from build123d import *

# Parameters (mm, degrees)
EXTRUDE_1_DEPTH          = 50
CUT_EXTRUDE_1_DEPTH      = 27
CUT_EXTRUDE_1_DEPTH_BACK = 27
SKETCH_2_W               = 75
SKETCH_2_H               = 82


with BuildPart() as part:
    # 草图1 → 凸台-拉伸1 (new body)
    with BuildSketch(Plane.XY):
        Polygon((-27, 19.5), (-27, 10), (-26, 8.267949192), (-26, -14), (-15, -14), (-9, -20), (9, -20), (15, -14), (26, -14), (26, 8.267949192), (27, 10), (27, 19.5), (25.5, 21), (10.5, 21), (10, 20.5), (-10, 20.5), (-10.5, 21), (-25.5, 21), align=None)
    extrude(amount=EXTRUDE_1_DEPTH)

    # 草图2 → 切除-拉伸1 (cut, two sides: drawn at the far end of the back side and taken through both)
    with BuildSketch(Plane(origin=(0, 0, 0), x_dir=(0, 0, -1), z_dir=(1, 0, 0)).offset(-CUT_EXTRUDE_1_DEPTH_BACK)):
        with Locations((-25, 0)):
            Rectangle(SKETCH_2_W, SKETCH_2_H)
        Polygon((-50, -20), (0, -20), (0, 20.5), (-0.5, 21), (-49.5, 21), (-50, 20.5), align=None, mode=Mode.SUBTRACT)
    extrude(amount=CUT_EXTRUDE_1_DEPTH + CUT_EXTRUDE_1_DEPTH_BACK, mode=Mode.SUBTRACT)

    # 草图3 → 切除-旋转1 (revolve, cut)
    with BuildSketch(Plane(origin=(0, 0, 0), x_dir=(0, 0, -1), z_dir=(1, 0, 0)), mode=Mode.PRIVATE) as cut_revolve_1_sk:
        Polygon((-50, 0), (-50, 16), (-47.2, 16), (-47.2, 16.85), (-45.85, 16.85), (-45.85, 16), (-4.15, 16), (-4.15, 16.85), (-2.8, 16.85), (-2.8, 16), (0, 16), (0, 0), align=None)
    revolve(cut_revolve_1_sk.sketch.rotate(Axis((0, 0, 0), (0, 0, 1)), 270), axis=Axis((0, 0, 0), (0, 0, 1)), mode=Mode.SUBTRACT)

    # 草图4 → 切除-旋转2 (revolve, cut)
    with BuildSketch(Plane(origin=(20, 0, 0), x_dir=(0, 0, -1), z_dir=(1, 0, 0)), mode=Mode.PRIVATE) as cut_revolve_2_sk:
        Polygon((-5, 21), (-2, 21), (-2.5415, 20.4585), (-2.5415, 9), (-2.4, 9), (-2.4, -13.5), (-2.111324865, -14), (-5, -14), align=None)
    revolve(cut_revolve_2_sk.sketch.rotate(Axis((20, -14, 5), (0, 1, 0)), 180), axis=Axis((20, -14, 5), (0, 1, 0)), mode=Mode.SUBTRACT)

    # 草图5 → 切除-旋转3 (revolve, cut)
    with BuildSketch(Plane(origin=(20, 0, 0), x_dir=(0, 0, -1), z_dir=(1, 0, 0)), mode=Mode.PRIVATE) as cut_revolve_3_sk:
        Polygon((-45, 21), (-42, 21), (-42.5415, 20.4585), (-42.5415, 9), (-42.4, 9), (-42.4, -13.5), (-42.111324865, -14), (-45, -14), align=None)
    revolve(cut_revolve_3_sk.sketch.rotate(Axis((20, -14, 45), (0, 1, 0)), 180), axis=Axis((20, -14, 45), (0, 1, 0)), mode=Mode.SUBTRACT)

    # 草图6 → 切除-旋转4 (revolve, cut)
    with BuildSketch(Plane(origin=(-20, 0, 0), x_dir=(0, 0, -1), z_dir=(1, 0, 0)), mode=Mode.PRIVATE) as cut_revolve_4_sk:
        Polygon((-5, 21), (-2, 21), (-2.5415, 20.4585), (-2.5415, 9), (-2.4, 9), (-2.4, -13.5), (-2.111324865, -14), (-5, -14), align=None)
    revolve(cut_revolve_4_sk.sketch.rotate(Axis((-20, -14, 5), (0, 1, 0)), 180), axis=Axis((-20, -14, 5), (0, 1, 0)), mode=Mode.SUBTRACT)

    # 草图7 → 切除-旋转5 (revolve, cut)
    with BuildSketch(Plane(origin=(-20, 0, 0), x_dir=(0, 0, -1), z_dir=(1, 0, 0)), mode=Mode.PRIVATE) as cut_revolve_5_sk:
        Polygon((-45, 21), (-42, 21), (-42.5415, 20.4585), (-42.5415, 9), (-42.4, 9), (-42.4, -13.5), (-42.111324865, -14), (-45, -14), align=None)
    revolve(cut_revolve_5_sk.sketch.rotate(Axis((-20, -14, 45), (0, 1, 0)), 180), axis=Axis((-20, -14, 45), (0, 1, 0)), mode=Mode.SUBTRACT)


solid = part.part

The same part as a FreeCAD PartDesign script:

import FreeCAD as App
import Part
import Sketcher
from FreeCAD import Vector
Q = App.Units.Quantity

doc = App.newDocument("Part")
body = doc.addObject("PartDesign::Body", "Body")

sketch1 = doc.addObject("Sketcher::SketchObject", "Sketch")
body.addObject(sketch1)
sketch1.AttachmentSupport = (doc.XY_Plane, [""])
sketch1.MapMode = "FlatFace"
sketch1.addGeometry([
    Part.LineSegment(Vector(-27, 19.5, 0), Vector(-27, 10, 0)),
    Part.LineSegment(Vector(-27, 10, 0), Vector(-26, 8.3, 0)),
    Part.LineSegment(Vector(-26, 8.3, 0), Vector(-26, -14, 0)),
    Part.LineSegment(Vector(-26, -14, 0), Vector(-15, -14, 0)),
    Part.LineSegment(Vector(-15, -14, 0), Vector(-9, -20, 0)),
    Part.LineSegment(Vector(-9, -20, 0), Vector(9, -20, 0)),
    Part.LineSegment(Vector(9, -20, 0), Vector(15, -14, 0)),
    Part.LineSegment(Vector(15, -14, 0), Vector(26, -14, 0)),
    Part.LineSegment(Vector(26, -14, 0), Vector(26, 8.3, 0)),
    Part.LineSegment(Vector(26, 8.3, 0), Vector(27, 10, 0)),
    Part.LineSegment(Vector(27, 10, 0), Vector(27, 19.5, 0)),
    Part.LineSegment(Vector(27, 19.5, 0), Vector(25.5, 21, 0)),
    Part.LineSegment(Vector(25.5, 21, 0), Vector(10.5, 21, 0)),
    Part.LineSegment(Vector(10.5, 21, 0), Vector(10, 20.5, 0)),
    Part.LineSegment(Vector(10, 20.5, 0), Vector(-10, 20.5, 0)),
    Part.LineSegment(Vector(-10, 20.5, 0), Vector(-10.5, 21, 0)),
    Part.LineSegment(Vector(-10.5, 21, 0), Vector(-25.5, 21, 0)),
    Part.LineSegment(Vector(-25.5, 21, 0), Vector(-27, 19.5, 0)),
], False)
sketch1.addConstraint([
    Sketcher.Constraint("Coincident", 0, 2, 1, 1),
    Sketcher.Constraint("Coincident", 1, 2, 2, 1),
    Sketcher.Constraint("Coincident", 2, 2, 3, 1),
    Sketcher.Constraint("Coincident", 3, 2, 4, 1),
    Sketcher.Constraint("Coincident", 4, 2, 5, 1),
    Sketcher.Constraint("Coincident", 5, 2, 6, 1),
    Sketcher.Constraint("Coincident", 6, 2, 7, 1),
    Sketcher.Constraint("Coincident", 7, 2, 8, 1),
    Sketcher.Constraint("Coincident", 8, 2, 9, 1),
    Sketcher.Constraint("Coincident", 9, 2, 10, 1),
    Sketcher.Constraint("Coincident", 10, 2, 11, 1),
    Sketcher.Constraint("Coincident", 11, 2, 12, 1),
    Sketcher.Constraint("Coincident", 12, 2, 13, 1),
    Sketcher.Constraint("Coincident", 13, 2, 14, 1),
    Sketcher.Constraint("Coincident", 14, 2, 15, 1),
    Sketcher.Constraint("Coincident", 15, 2, 16, 1),
    Sketcher.Constraint("Coincident", 16, 2, 17, 1),
    Sketcher.Constraint("Coincident", 17, 2, 0, 1),
    Sketcher.Constraint("Vertical", 0),
    Sketcher.Constraint("Vertical", 2),
    Sketcher.Constraint("Horizontal", 3),
    Sketcher.Constraint("Horizontal", 5),
    Sketcher.Constraint("Horizontal", 7),
    Sketcher.Constraint("Vertical", 8),
    Sketcher.Constraint("Vertical", 10),
    Sketcher.Constraint("Horizontal", 12),
    Sketcher.Constraint("Horizontal", 14),
    Sketcher.Constraint("Horizontal", 16),
    Sketcher.Constraint("Symmetric", 3, 2, 6, 2, -2),
    Sketcher.Constraint("Symmetric", 1, 2, 8, 2, -2),
    Sketcher.Constraint("Symmetric", 0, 2, 9, 2, -2),
    Sketcher.Constraint("Symmetric", 12, 2, 15, 2, -2),
    Sketcher.Constraint("Perpendicular", 4, 6),
    Sketcher.Constraint("Perpendicular", 6, 11),
    Sketcher.Constraint("Perpendicular", 11, 13),
    Sketcher.Constraint("Perpendicular", 13, 15),
    Sketcher.Constraint("Perpendicular", 15, 17),
    Sketcher.Constraint("Horizontal", 10, 2, 17, 2),
    Sketcher.Constraint("Equal", 12, 16),
    Sketcher.Constraint("DistanceX", 3, 1, 3, 2, 11.0),
    Sketcher.Constraint("DistanceX", 5, 1, 5, 2, 18.0),
    Sketcher.Constraint("DistanceX", 12, 2, 12, 1, 15.0),
    Sketcher.Constraint("DistanceX", 14, 2, 14, 1, 20.0),
    Sketcher.Constraint("Angle", 1, Q("-60 deg")),
    Sketcher.Constraint("Distance", 1, 2.0),
    Sketcher.Constraint("DistanceY", 0, 2, 0, 1, 9.5),
    Sketcher.Constraint("DistanceX", 0, 2, -1, 1, 27.0),
    Sketcher.Constraint("DistanceY", -1, 1, 0, 2, 10.0),
    Sketcher.Constraint("DistanceY", 2, 2, -1, 1, 14.0),
    Sketcher.Constraint("DistanceY", -1, 1, 11, 2, 21.0),
])
pad1 = doc.addObject("PartDesign::Pad", "Pad")
body.addObject(pad1)
pad1.Profile = sketch1
pad1.Length = 50

sketch2 = doc.addObject("Sketcher::SketchObject", "Sketch001")
body.addObject(sketch2)
sketch2.AttachmentSupport = (doc.YZ_Plane, [""])
sketch2.MapMode = "FlatFace"
sketch2.addGeometry([
    Part.LineSegment(Vector(41, 62.5, 0), Vector(-41, 62.5, 0)),
    Part.LineSegment(Vector(-41, 62.5, 0), Vector(-41, -12.5, 0)),
    Part.LineSegment(Vector(-41, -12.5, 0), Vector(41, -12.5, 0)),
    Part.LineSegment(Vector(41, -12.5, 0), Vector(41, 62.5, 0)),
    Part.LineSegment(Vector(-20, 0, 0), Vector(-20, 50, 0)),
    Part.LineSegment(Vector(-20, 50, 0), Vector(20.5, 50, 0)),
    Part.LineSegment(Vector(20.5, 50, 0), Vector(21, 49.5, 0)),
    Part.LineSegment(Vector(21, 49.5, 0), Vector(21, 0.5, 0)),
    Part.LineSegment(Vector(21, 0.5, 0), Vector(20.5, 0, 0)),
    Part.LineSegment(Vector(20.5, 0, 0), Vector(-20, 0, 0)),
], False)
sketch2.addConstraint([
    Sketcher.Constraint("Coincident", 0, 2, 1, 1),
    Sketcher.Constraint("Coincident", 1, 2, 2, 1),
    Sketcher.Constraint("Coincident", 2, 2, 3, 1),
    Sketcher.Constraint("Coincident", 3, 2, 0, 1),
    Sketcher.Constraint("Coincident", 4, 2, 5, 1),
    Sketcher.Constraint("Coincident", 5, 2, 6, 1),
    Sketcher.Constraint("Coincident", 6, 2, 7, 1),
    Sketcher.Constraint("Coincident", 7, 2, 8, 1),
    Sketcher.Constraint("Coincident", 8, 2, 9, 1),
    Sketcher.Constraint("Coincident", 9, 2, 4, 1),
    Sketcher.Constraint("Horizontal", 0),
    Sketcher.Constraint("Vertical", 1),
    Sketcher.Constraint("Horizontal", 2),
    Sketcher.Constraint("Vertical", 3),
    Sketcher.Constraint("Vertical", 4),
    Sketcher.Constraint("Horizontal", 5),
    Sketcher.Constraint("Vertical", 7),
    Sketcher.Constraint("Horizontal", 9),
    Sketcher.Constraint("PointOnObject", 8, 2, -1),
    Sketcher.Constraint("Perpendicular", 6, 8),
    Sketcher.Constraint("Vertical", 5, 2, 8, 2),
    Sketcher.Constraint("Equal", 6, 8),
    Sketcher.Constraint("DistanceX", 0, 2, 0, 1, 82.0),
    Sketcher.Constraint("DistanceY", 1, 2, 1, 1, 75.0),
    Sketcher.Constraint("DistanceY", 4, 1, 4, 2, 50.0),
    Sketcher.Constraint("DistanceY", 7, 2, 7, 1, 49.0),
    Sketcher.Constraint("DistanceX", 5, 1, 5, 2, 40.5),
    Sketcher.Constraint("DistanceX", 0, 2, -1, 1, 41.0),
    Sketcher.Constraint("DistanceX", 4, 2, -1, 1, 20.0),
    Sketcher.Constraint("DistanceY", 6, 2, 3, 2, 13.0),
])
pocket1 = doc.addObject("PartDesign::Pocket", "Pocket")
body.addObject(pocket1)
pocket1.Profile = sketch2
pocket1.Type = "ThroughAll"
pocket1.Midplane = True

sketch3 = doc.addObject("Sketcher::SketchObject", "Sketch002")
body.addObject(sketch3)
sketch3.AttachmentSupport = (doc.YZ_Plane, [""])
sketch3.MapMode = "FlatFace"
sketch3.addGeometry([
    Part.LineSegment(Vector(16, 50, 0), Vector(0, 50, 0)),
    Part.LineSegment(Vector(0, 50, 0), Vector(0, 0, 0)),
    Part.LineSegment(Vector(0, 0, 0), Vector(16, 0, 0)),
    Part.LineSegment(Vector(16, 0, 0), Vector(16, 2.8, 0)),
    Part.LineSegment(Vector(16, 2.8, 0), Vector(16.9, 2.8, 0)),
    Part.LineSegment(Vector(16.9, 2.8, 0), Vector(16.9, 4.2, 0)),
    Part.LineSegment(Vector(16.9, 4.2, 0), Vector(16, 4.2, 0)),
    Part.LineSegment(Vector(16, 4.2, 0), Vector(16, 45.9, 0)),
    Part.LineSegment(Vector(16, 45.9, 0), Vector(16.9, 45.9, 0)),
    Part.LineSegment(Vector(16.9, 45.9, 0), Vector(16.9, 47.2, 0)),
    Part.LineSegment(Vector(16.9, 47.2, 0), Vector(16, 47.2, 0)),
    Part.LineSegment(Vector(16, 47.2, 0), Vector(16, 50, 0)),
], False)
sketch3.addConstraint([
    Sketcher.Constraint("Coincident", 0, 2, 1, 1),
    Sketcher.Constraint("Coincident", 1, 2, 2, 1),
    Sketcher.Constraint("Coincident", 2, 2, 3, 1),
    Sketcher.Constraint("Coincident", 3, 2, 4, 1),
    Sketcher.Constraint("Coincident", 4, 2, 5, 1),
    Sketcher.Constraint("Coincident", 5, 2, 6, 1),
    Sketcher.Constraint("Coincident", 6, 2, 7, 1),
    Sketcher.Constraint("Coincident", 7, 2, 8, 1),
    Sketcher.Constraint("Coincident", 8, 2, 9, 1),
    Sketcher.Constraint("Coincident", 9, 2, 10, 1),
    Sketcher.Constraint("Coincident", 10, 2, 11, 1),
    Sketcher.Constraint("Coincident", 11, 2, 0, 1),
    Sketcher.Constraint("Horizontal", 0),
    Sketcher.Constraint("Vertical", 1),
    Sketcher.Constraint("Horizontal", 2),
    Sketcher.Constraint("Vertical", 3),
    Sketcher.Constraint("Horizontal", 4),
    Sketcher.Constraint("Vertical", 5),
    Sketcher.Constraint("Horizontal", 6),
    Sketcher.Constraint("Vertical", 7),
    Sketcher.Constraint("Horizontal", 8),
    Sketcher.Constraint("Vertical", 9),
    Sketcher.Constraint("Horizontal", 10),
    Sketcher.Constraint("Vertical", 11),
    Sketcher.Constraint("Coincident", 1, 2, -1, 1),
    Sketcher.Constraint("Vertical", 3, 2, 6, 2),
    Sketcher.Constraint("Vertical", 5, 2, 8, 2),
    Sketcher.Constraint("Vertical", 7, 2, 10, 2),
    Sketcher.Constraint("Equal", 5, 9),
    Sketcher.Constraint("Equal", 3, 11),
    Sketcher.Constraint("DistanceX", 0, 2, 0, 1, 16.0),
    Sketcher.Constraint("DistanceY", 1, 2, 1, 1, 50.0),
    Sketcher.Constraint("DistanceY", 3, 1, 3, 2, 2.8),
    Sketcher.Constraint("DistanceY", 7, 1, 7, 2, 41.7),
    Sketcher.Constraint("DistanceX", 4, 1, 4, 2, 0.85),
])
groove = doc.addObject("PartDesign::Groove", "Groove")
body.addObject(groove)
groove.Profile = sketch3
groove.ReferenceAxis = (sketch3, ["V_Axis"])
groove.Angle = 360

sketch4 = doc.addObject("Sketcher::SketchObject", "Sketch003")
body.addObject(sketch4)
sketch4.AttachmentSupport = (doc.YZ_Plane, [""])
sketch4.MapMode = "FlatFace"
sketch4.AttachmentOffset = App.Placement(Vector(0, 0, 20), App.Rotation())
sketch4.addGeometry([
    Part.LineSegment(Vector(21, 2, 0), Vector(21, 5, 0)),
    Part.LineSegment(Vector(21, 5, 0), Vector(-14, 5, 0)),
    Part.LineSegment(Vector(-14, 5, 0), Vector(-14, 2.11, 0)),
    Part.LineSegment(Vector(-14, 2.11, 0), Vector(-13.5, 2.4, 0)),
    Part.LineSegment(Vector(-13.5, 2.4, 0), Vector(9, 2.4, 0)),
    Part.LineSegment(Vector(9, 2.4, 0), Vector(9, 2.54, 0)),
    Part.LineSegment(Vector(9, 2.54, 0), Vector(20.46, 2.54, 0)),
    Part.LineSegment(Vector(20.46, 2.54, 0), Vector(21, 2, 0)),
], False)
sketch4.addGeometry(Part.LineSegment(Vector(-14, 5, 0), Vector(21, 5, 0)), True)
sketch4.addConstraint([
    Sketcher.Constraint("Coincident", 0, 2, 1, 1),
    Sketcher.Constraint("Coincident", 1, 2, 2, 1),
    Sketcher.Constraint("Coincident", 2, 2, 3, 1),
    Sketcher.Constraint("Coincident", 3, 2, 4, 1),
    Sketcher.Constraint("Coincident", 4, 2, 5, 1),
    Sketcher.Constraint("Coincident", 5, 2, 6, 1),
    Sketcher.Constraint("Coincident", 6, 2, 7, 1),
    Sketcher.Constraint("Coincident", 7, 2, 0, 1),
    Sketcher.Constraint("Vertical", 0),
    Sketcher.Constraint("Horizontal", 1),
    Sketcher.Constraint("Vertical", 2),
    Sketcher.Constraint("Horizontal", 4),
    Sketcher.Constraint("Vertical", 5),
    Sketcher.Constraint("Horizontal", 6),
    Sketcher.Constraint("Horizontal", 8),
    Sketcher.Constraint("Coincident", 8, 1, 1, 2),
    Sketcher.Constraint("Vertical", 7, 2, 8, 2),
    Sketcher.Constraint("DistanceX", 1, 2, 1, 1, 35.0),
    Sketcher.Constraint("DistanceY", 0, 1, 0, 2, 3.0),
    Sketcher.Constraint("Angle", 3, Q("30 deg")),
    Sketcher.Constraint("Angle", 7, Q("-45 deg")),
    Sketcher.Constraint("DistanceX", 4, 1, 4, 2, 22.5),
    Sketcher.Constraint("DistanceX", -1, 1, 0, 2, 21.0),
    Sketcher.Constraint("DistanceY", -1, 1, 0, 2, 5.0),
    Sketcher.Constraint("DistanceX", -1, 1, 4, 2, 9.0),
    Sketcher.Constraint("DistanceY", -1, 1, 3, 2, 2.4),
    Sketcher.Constraint("DistanceX", 6, 1, 6, 2, 11.4585),
])
groove2 = doc.addObject("PartDesign::Groove", "Groove001")
body.addObject(groove2)
groove2.Profile = sketch4
groove2.ReferenceAxis = (sketch4, ["Axis0"])
groove2.Angle = 360

sketch5 = doc.addObject("Sketcher::SketchObject", "Sketch004")
body.addObject(sketch5)
sketch5.AttachmentSupport = (doc.YZ_Plane, [""])
sketch5.MapMode = "FlatFace"
sketch5.AttachmentOffset = App.Placement(Vector(0, 0, 20), App.Rotation())
sketch5.addGeometry([
    Part.LineSegment(Vector(21, 42, 0), Vector(21, 45, 0)),
    Part.LineSegment(Vector(21, 45, 0), Vector(-14, 45, 0)),
    Part.LineSegment(Vector(-14, 45, 0), Vector(-14, 42.11, 0)),
    Part.LineSegment(Vector(-14, 42.11, 0), Vector(-13.5, 42.4, 0)),
    Part.LineSegment(Vector(-13.5, 42.4, 0), Vector(9, 42.4, 0)),
    Part.LineSegment(Vector(9, 42.4, 0), Vector(9, 42.54, 0)),
    Part.LineSegment(Vector(9, 42.54, 0), Vector(20.46, 42.54, 0)),
    Part.LineSegment(Vector(20.46, 42.54, 0), Vector(21, 42, 0)),
], False)
sketch5.addGeometry(Part.LineSegment(Vector(-14, 45, 0), Vector(21, 45, 0)), True)
sketch5.addConstraint([
    Sketcher.Constraint("Coincident", 0, 2, 1, 1),
    Sketcher.Constraint("Coincident", 1, 2, 2, 1),
    Sketcher.Constraint("Coincident", 2, 2, 3, 1),
    Sketcher.Constraint("Coincident", 3, 2, 4, 1),
    Sketcher.Constraint("Coincident", 4, 2, 5, 1),
    Sketcher.Constraint("Coincident", 5, 2, 6, 1),
    Sketcher.Constraint("Coincident", 6, 2, 7, 1),
    Sketcher.Constraint("Coincident", 7, 2, 0, 1),
    Sketcher.Constraint("Vertical", 0),
    Sketcher.Constraint("Horizontal", 1),
    Sketcher.Constraint("Vertical", 2),
    Sketcher.Constraint("Horizontal", 4),
    Sketcher.Constraint("Vertical", 5),
    Sketcher.Constraint("Horizontal", 6),
    Sketcher.Constraint("Horizontal", 8),
    Sketcher.Constraint("Coincident", 8, 1, 1, 2),
    Sketcher.Constraint("Vertical", 7, 2, 8, 2),
    Sketcher.Constraint("DistanceX", 1, 2, 1, 1, 35.0),
    Sketcher.Constraint("DistanceY", 0, 1, 0, 2, 3.0),
    Sketcher.Constraint("Angle", 3, Q("30 deg")),
    Sketcher.Constraint("Angle", 7, Q("-45 deg")),
    Sketcher.Constraint("DistanceX", 4, 1, 4, 2, 22.5),
    Sketcher.Constraint("DistanceX", -1, 1, 0, 2, 21.0),
    Sketcher.Constraint("DistanceY", -1, 1, 0, 2, 45.0),
    Sketcher.Constraint("DistanceX", -1, 1, 4, 2, 9.0),
    Sketcher.Constraint("DistanceY", -1, 1, 3, 2, 42.4),
    Sketcher.Constraint("DistanceX", 6, 1, 6, 2, 11.4585),
])
groove3 = doc.addObject("PartDesign::Groove", "Groove002")
body.addObject(groove3)
groove3.Profile = sketch5
groove3.ReferenceAxis = (sketch5, ["Axis0"])
groove3.Angle = 360

sketch6 = doc.addObject("Sketcher::SketchObject", "Sketch005")
body.addObject(sketch6)
sketch6.AttachmentSupport = (doc.YZ_Plane, [""])
sketch6.MapMode = "FlatFace"
sketch6.AttachmentOffset = App.Placement(Vector(0, 0, -20), App.Rotation())
sketch6.addGeometry([
    Part.LineSegment(Vector(21, 2, 0), Vector(21, 5, 0)),
    Part.LineSegment(Vector(21, 5, 0), Vector(-14, 5, 0)),
    Part.LineSegment(Vector(-14, 5, 0), Vector(-14, 2.11, 0)),
    Part.LineSegment(Vector(-14, 2.11, 0), Vector(-13.5, 2.4, 0)),
    Part.LineSegment(Vector(-13.5, 2.4, 0), Vector(9, 2.4, 0)),
    Part.LineSegment(Vector(9, 2.4, 0), Vector(9, 2.54, 0)),
    Part.LineSegment(Vector(9, 2.54, 0), Vector(20.46, 2.54, 0)),
    Part.LineSegment(Vector(20.46, 2.54, 0), Vector(21, 2, 0)),
], False)
sketch6.addGeometry(Part.LineSegment(Vector(-14, 5, 0), Vector(21, 5, 0)), True)
sketch6.addConstraint([
    Sketcher.Constraint("Coincident", 0, 2, 1, 1),
    Sketcher.Constraint("Coincident", 1, 2, 2, 1),
    Sketcher.Constraint("Coincident", 2, 2, 3, 1),
    Sketcher.Constraint("Coincident", 3, 2, 4, 1),
    Sketcher.Constraint("Coincident", 4, 2, 5, 1),
    Sketcher.Constraint("Coincident", 5, 2, 6, 1),
    Sketcher.Constraint("Coincident", 6, 2, 7, 1),
    Sketcher.Constraint("Coincident", 7, 2, 0, 1),
    Sketcher.Constraint("Vertical", 0),
    Sketcher.Constraint("Horizontal", 1),
    Sketcher.Constraint("Vertical", 2),
    Sketcher.Constraint("Horizontal", 4),
    Sketcher.Constraint("Vertical", 5),
    Sketcher.Constraint("Horizontal", 6),
    Sketcher.Constraint("Horizontal", 8),
    Sketcher.Constraint("Coincident", 8, 1, 1, 2),
    Sketcher.Constraint("Vertical", 7, 2, 8, 2),
    Sketcher.Constraint("DistanceX", 1, 2, 1, 1, 35.0),
    Sketcher.Constraint("DistanceY", 0, 1, 0, 2, 3.0),
    Sketcher.Constraint("Angle", 3, Q("30 deg")),
    Sketcher.Constraint("Angle", 7, Q("-45 deg")),
    Sketcher.Constraint("DistanceX", 4, 1, 4, 2, 22.5),
    Sketcher.Constraint("DistanceX", -1, 1, 0, 2, 21.0),
    Sketcher.Constraint("DistanceY", -1, 1, 0, 2, 5.0),
    Sketcher.Constraint("DistanceX", -1, 1, 4, 2, 9.0),
    Sketcher.Constraint("DistanceY", -1, 1, 3, 2, 2.4),
    Sketcher.Constraint("DistanceX", 6, 1, 6, 2, 11.4585),
])
groove4 = doc.addObject("PartDesign::Groove", "Groove003")
body.addObject(groove4)
groove4.Profile = sketch6
groove4.ReferenceAxis = (sketch6, ["Axis0"])
groove4.Angle = 360

sketch7 = doc.addObject("Sketcher::SketchObject", "Sketch006")
body.addObject(sketch7)
sketch7.AttachmentSupport = (doc.YZ_Plane, [""])
sketch7.MapMode = "FlatFace"
sketch7.AttachmentOffset = App.Placement(Vector(0, 0, -20), App.Rotation())
sketch7.addGeometry([
    Part.LineSegment(Vector(21, 42, 0), Vector(21, 45, 0)),
    Part.LineSegment(Vector(21, 45, 0), Vector(-14, 45, 0)),
    Part.LineSegment(Vector(-14, 45, 0), Vector(-14, 42.11, 0)),
    Part.LineSegment(Vector(-14, 42.11, 0), Vector(-13.5, 42.4, 0)),
    Part.LineSegment(Vector(-13.5, 42.4, 0), Vector(9, 42.4, 0)),
    Part.LineSegment(Vector(9, 42.4, 0), Vector(9, 42.54, 0)),
    Part.LineSegment(Vector(9, 42.54, 0), Vector(20.46, 42.54, 0)),
    Part.LineSegment(Vector(20.46, 42.54, 0), Vector(21, 42, 0)),
], False)
sketch7.addGeometry(Part.LineSegment(Vector(-14, 45, 0), Vector(21, 45, 0)), True)
sketch7.addConstraint([
    Sketcher.Constraint("Coincident", 0, 2, 1, 1),
    Sketcher.Constraint("Coincident", 1, 2, 2, 1),
    Sketcher.Constraint("Coincident", 2, 2, 3, 1),
    Sketcher.Constraint("Coincident", 3, 2, 4, 1),
    Sketcher.Constraint("Coincident", 4, 2, 5, 1),
    Sketcher.Constraint("Coincident", 5, 2, 6, 1),
    Sketcher.Constraint("Coincident", 6, 2, 7, 1),
    Sketcher.Constraint("Coincident", 7, 2, 0, 1),
    Sketcher.Constraint("Vertical", 0),
    Sketcher.Constraint("Horizontal", 1),
    Sketcher.Constraint("Vertical", 2),
    Sketcher.Constraint("Horizontal", 4),
    Sketcher.Constraint("Vertical", 5),
    Sketcher.Constraint("Horizontal", 6),
    Sketcher.Constraint("Horizontal", 8),
    Sketcher.Constraint("Coincident", 8, 1, 1, 2),
    Sketcher.Constraint("Vertical", 7, 2, 8, 2),
    Sketcher.Constraint("DistanceX", 1, 2, 1, 1, 35.0),
    Sketcher.Constraint("DistanceY", 0, 1, 0, 2, 3.0),
    Sketcher.Constraint("Angle", 3, Q("30 deg")),
    Sketcher.Constraint("Angle", 7, Q("-45 deg")),
    Sketcher.Constraint("DistanceX", 4, 1, 4, 2, 22.5),
    Sketcher.Constraint("DistanceX", -1, 1, 0, 2, 21.0),
    Sketcher.Constraint("DistanceY", -1, 1, 0, 2, 45.0),
    Sketcher.Constraint("DistanceX", -1, 1, 4, 2, 9.0),
    Sketcher.Constraint("DistanceY", -1, 1, 3, 2, 42.4),
    Sketcher.Constraint("DistanceX", 6, 1, 6, 2, 11.4585),
])
groove5 = doc.addObject("PartDesign::Groove", "Groove004")
body.addObject(groove5)
groove5.Profile = sketch7
groove5.ReferenceAxis = (sketch7, ["Axis0"])
groove5.Angle = 360

doc.recompute()
